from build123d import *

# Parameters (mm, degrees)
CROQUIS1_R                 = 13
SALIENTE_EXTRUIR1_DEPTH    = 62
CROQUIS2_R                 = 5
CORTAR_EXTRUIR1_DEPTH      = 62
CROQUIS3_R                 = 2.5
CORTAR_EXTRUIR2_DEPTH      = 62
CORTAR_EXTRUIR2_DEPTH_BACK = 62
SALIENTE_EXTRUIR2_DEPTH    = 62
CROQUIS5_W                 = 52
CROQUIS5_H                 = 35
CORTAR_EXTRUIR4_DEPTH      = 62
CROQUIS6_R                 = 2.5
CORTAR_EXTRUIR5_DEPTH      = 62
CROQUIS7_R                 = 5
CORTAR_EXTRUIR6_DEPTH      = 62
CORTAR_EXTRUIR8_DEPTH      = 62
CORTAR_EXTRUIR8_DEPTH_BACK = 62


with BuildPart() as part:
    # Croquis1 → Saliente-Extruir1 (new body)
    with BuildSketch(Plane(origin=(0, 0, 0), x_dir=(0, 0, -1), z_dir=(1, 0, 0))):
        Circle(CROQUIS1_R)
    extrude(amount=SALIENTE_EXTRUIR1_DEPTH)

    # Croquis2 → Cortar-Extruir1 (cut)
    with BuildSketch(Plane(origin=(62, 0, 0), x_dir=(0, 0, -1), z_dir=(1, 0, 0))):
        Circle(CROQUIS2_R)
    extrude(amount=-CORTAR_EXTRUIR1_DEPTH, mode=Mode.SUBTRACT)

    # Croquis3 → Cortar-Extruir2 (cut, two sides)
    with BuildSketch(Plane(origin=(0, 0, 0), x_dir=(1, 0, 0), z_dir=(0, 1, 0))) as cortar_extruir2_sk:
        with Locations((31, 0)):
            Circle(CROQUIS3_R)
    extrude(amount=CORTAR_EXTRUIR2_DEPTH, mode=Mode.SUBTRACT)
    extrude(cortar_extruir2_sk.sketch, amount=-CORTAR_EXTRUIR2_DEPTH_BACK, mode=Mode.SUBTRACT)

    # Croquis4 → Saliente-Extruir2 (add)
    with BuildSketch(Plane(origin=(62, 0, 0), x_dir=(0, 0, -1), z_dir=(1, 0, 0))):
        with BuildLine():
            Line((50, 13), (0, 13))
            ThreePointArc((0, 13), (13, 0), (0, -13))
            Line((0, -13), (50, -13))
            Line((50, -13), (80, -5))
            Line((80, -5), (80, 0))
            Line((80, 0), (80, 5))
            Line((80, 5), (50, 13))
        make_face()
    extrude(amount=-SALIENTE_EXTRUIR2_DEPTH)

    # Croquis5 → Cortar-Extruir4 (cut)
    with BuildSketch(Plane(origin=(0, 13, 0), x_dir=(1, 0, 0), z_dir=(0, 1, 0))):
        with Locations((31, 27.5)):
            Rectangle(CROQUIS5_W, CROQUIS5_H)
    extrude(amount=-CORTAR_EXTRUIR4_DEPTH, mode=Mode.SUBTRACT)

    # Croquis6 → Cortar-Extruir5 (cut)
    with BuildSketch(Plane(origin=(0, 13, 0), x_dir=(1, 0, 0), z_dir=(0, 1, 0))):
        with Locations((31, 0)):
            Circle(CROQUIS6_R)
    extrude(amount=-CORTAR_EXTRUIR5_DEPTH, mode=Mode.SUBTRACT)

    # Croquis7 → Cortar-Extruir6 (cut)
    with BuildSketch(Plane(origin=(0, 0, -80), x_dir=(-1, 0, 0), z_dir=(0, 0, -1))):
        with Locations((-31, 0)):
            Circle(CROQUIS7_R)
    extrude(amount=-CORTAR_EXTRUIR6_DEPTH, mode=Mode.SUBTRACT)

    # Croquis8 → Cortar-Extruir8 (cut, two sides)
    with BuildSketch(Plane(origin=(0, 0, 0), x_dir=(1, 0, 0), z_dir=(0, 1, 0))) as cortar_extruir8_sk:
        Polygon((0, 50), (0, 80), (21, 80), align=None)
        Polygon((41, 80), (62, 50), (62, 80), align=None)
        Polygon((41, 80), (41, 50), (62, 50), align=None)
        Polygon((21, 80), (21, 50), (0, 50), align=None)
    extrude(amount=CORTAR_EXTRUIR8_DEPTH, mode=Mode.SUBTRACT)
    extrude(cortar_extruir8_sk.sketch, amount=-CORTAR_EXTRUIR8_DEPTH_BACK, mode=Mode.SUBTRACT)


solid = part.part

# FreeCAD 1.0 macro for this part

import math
import FreeCAD as App
import Part
import Sketcher

V = App.Vector
Q = App.Units.Quantity

doc = App.newDocument("Part")
body = doc.addObject("PartDesign::Body", "Body")

# Sketch on YZ plane
sketch1 = body.newObject("Sketcher::SketchObject", "Sketch")
sketch1.AttachmentSupport = (doc.getObject("YZ_Plane"), [""])
sketch1.MapMode = "FlatFace"
sketch1.addGeometry(Part.Circle(V(0, 0, 0), V(0, 0, 1), 13), False)
sketch1.addConstraint(Sketcher.Constraint("Coincident", 0, 3, -1, 1))
sketch1.addConstraint(Sketcher.Constraint("Diameter", 0, Q("26 mm")))
pad1 = body.newObject("PartDesign::Pad", "Pad")
pad1.Profile = sketch1
pad1.Length = 62

# Sketch on YZ plane
sketch2 = body.newObject("Sketcher::SketchObject", "Sketch001")
sketch2.AttachmentSupport = (doc.getObject("YZ_Plane"), [""])
sketch2.MapMode = "FlatFace"
sketch2.AttachmentOffset = App.Placement(V(0, 0, 62), App.Rotation())
sketch2.addGeometry(Part.Circle(V(0, 0, 0), V(0, 0, 1), 5), False)
sketch2.addConstraint(Sketcher.Constraint("Coincident", 0, 3, -1, 1))
sketch2.addConstraint(Sketcher.Constraint("Diameter", 0, Q("10 mm")))
pocket1 = body.newObject("PartDesign::Pocket", "Pocket")
pocket1.Profile = sketch2
pocket1.Length = 62

# Sketch on XZ plane
sketch3 = body.newObject("Sketcher::SketchObject", "Sketch002")
sketch3.AttachmentSupport = (doc.getObject("XZ_Plane"), [""])
sketch3.MapMode = "FlatFace"
sketch3.addGeometry(Part.Circle(V(31, 0, 0), V(0, 0, 1), 2.5), False)
sketch3.addConstraint(Sketcher.Constraint("PointOnObject", 0, 3, -1))
sketch3.addConstraint(Sketcher.Constraint("Diameter", 0, Q("5 mm")))
sketch3.addConstraint(Sketcher.Constraint("DistanceX", -1, 1, 0, 3, Q("31 mm")))
pocket2 = body.newObject("PartDesign::Pocket", "Pocket001")
pocket2.Profile = sketch3
pocket2.Type = "ThroughAll"
pocket2.Midplane = True

# Sketch on YZ plane
sketch4 = body.newObject("Sketcher::SketchObject", "Sketch003")
sketch4.AttachmentSupport = (doc.getObject("YZ_Plane"), [""])
sketch4.MapMode = "FlatFace"
sketch4.AttachmentOffset = App.Placement(V(0, 0, 62), App.Rotation())
sketch4.addGeometry(Part.LineSegment(V(13, -50, 0), V(13, 0, 0)), False)
sketch4.addGeometry(Part.ArcOfCircle(Part.Circle(V(0, 0, 0), V(0, 0, 1), 13), math.radians(180), math.radians(360)), False)
sketch4.addGeometry(Part.LineSegment(V(-13, 0, 0), V(-13, -50, 0)), False)
sketch4.addGeometry(Part.LineSegment(V(-13, -50, 0), V(-5, -80, 0)), False)
sketch4.addGeometry(Part.LineSegment(V(-5, -80, 0), V(5, -80, 0)), False)
sketch4.addGeometry(Part.LineSegment(V(5, -80, 0), V(13, -50, 0)), False)
sketch4.addConstraint(Sketcher.Constraint("Tangent", 0, 2, 1, 2))
sketch4.addConstraint(Sketcher.Constraint("Tangent", 1, 1, 2, 1))
sketch4.addConstraint(Sketcher.Constraint("Coincident", 2, 2, 3, 1))
sketch4.addConstraint(Sketcher.Constraint("Coincident", 3, 2, 4, 1))
sketch4.addConstraint(Sketcher.Constraint("Coincident", 4, 2, 5, 1))
sketch4.addConstraint(Sketcher.Constraint("Coincident", 5, 2, 0, 1))
sketch4.addConstraint(Sketcher.Constraint("Vertical", 0))
sketch4.addConstraint(Sketcher.Constraint("Vertical", 2))
sketch4.addConstraint(Sketcher.Constraint("Horizontal", 4))
sketch4.addConstraint(Sketcher.Constraint("Coincident", 1, 3, -1, 1))
sketch4.addConstraint(Sketcher.Constraint("Horizontal", 2, 2, 5, 2))
sketch4.addConstraint(Sketcher.Constraint("Equal", 3, 5))
sketch4.addConstraint(Sketcher.Constraint("Radius", 1, Q("13 mm")))
sketch4.addConstraint(Sketcher.Constraint("DistanceX", 4, 1, 4, 2, Q("10 mm")))
sketch4.addConstraint(Sketcher.Constraint("DistanceY", 0, 1, 0, 2, Q("50 mm")))
sketch4.addConstraint(Sketcher.Constraint("DistanceY", 3, 2, -1, 1, Q("80 mm")))
pad2 = body.newObject("PartDesign::Pad", "Pad001")
pad2.Profile = sketch4
pad2.Length = 62
pad2.Reversed = True

# Sketch on XZ plane
sketch5 = body.newObject("Sketcher::SketchObject", "Sketch004")
sketch5.AttachmentSupport = (doc.getObject("XZ_Plane"), [""])
sketch5.MapMode = "FlatFace"
sketch5.AttachmentOffset = App.Placement(V(0, 0, -13), App.Rotation())
sketch5.addGeometry(Part.LineSegment(V(5, -45, 0), V(5, -10, 0)), False)
sketch5.addGeometry(Part.LineSegment(V(5, -10, 0), V(57, -10, 0)), False)
sketch5.addGeometry(Part.LineSegment(V(57, -10, 0), V(57, -45, 0)), False)
sketch5.addGeometry(Part.LineSegment(V(57, -45, 0), V(5, -45, 0)), False)
sketch5.addConstraint(Sketcher.Constraint("Coincident", 0, 2, 1, 1))
sketch5.addConstraint(Sketcher.Constraint("Coincident", 1, 2, 2, 1))
sketch5.addConstraint(Sketcher.Constraint("Coincident", 2, 2, 3, 1))
sketch5.addConstraint(Sketcher.Constraint("Coincident", 3, 2, 0, 1))
sketch5.addConstraint(Sketcher.Constraint("Vertical", 0))
sketch5.addConstraint(Sketcher.Constraint("Horizontal", 1))
sketch5.addConstraint(Sketcher.Constraint("Vertical", 2))
sketch5.addConstraint(Sketcher.Constraint("Horizontal", 3))
sketch5.addConstraint(Sketcher.Constraint("DistanceX", 1, 1, 1, 2, Q("52 mm")))
sketch5.addConstraint(Sketcher.Constraint("DistanceY", 0, 1, 0, 2, Q("35 mm")))
sketch5.addConstraint(Sketcher.Constraint("DistanceX", -1, 1, 0, 2, Q("5 mm")))
sketch5.addConstraint(Sketcher.Constraint("DistanceY", 0, 2, -1, 1, Q("10 mm")))
pocket3 = body.newObject("PartDesign::Pocket", "Pocket002")
pocket3.Profile = sketch5
pocket3.Length = 62
pocket3.Reversed = True

# Sketch on XZ plane
sketch6 = body.newObject("Sketcher::SketchObject", "Sketch005")
sketch6.AttachmentSupport = (doc.getObject("XZ_Plane"), [""])
sketch6.MapMode = "FlatFace"
sketch6.AttachmentOffset = App.Placement(V(0, 0, -13), App.Rotation())
sketch6.addGeometry(Part.Circle(V(31, 0, 0), V(0, 0, 1), 2.5), False)
sketch6.addConstraint(Sketcher.Constraint("PointOnObject", 0, 3, -1))
sketch6.addConstraint(Sketcher.Constraint("Diameter", 0, Q("5 mm")))
sketch6.addConstraint(Sketcher.Constraint("DistanceX", -1, 1, 0, 3, Q("31 mm")))
pocket4 = body.newObject("PartDesign::Pocket", "Pocket003")
pocket4.Profile = sketch6
pocket4.Length = 62
pocket4.Reversed = True

# Sketch on XY plane
sketch7 = body.newObject("Sketcher::SketchObject", "Sketch006")
sketch7.AttachmentSupport = (doc.getObject("XY_Plane"), [""])
sketch7.MapMode = "FlatFace"
sketch7.AttachmentOffset = App.Placement(V(0, 0, -80), App.Rotation())
sketch7.addGeometry(Part.Circle(V(31, 0, 0), V(0, 0, 1), 5), False)
sketch7.addConstraint(Sketcher.Constraint("PointOnObject", 0, 3, -1))
sketch7.addConstraint(Sketcher.Constraint("Diameter", 0, Q("10 mm")))
sketch7.addConstraint(Sketcher.Constraint("DistanceX", -1, 1, 0, 3, Q("31 mm")))
pocket5 = body.newObject("PartDesign::Pocket", "Pocket004")
pocket5.Profile = sketch7
pocket5.Length = 62
pocket5.Reversed = True

# Sketch on XZ plane
sketch8 = body.newObject("Sketcher::SketchObject", "Sketch007")
sketch8.AttachmentSupport = (doc.getObject("XZ_Plane"), [""])
sketch8.MapMode = "FlatFace"
sketch8.addGeometry(Part.LineSegment(V(0, -80, 0), V(0, -50, 0)), False)
sketch8.addGeometry(Part.LineSegment(V(0, -50, 0), V(21, -50, 0)), False)
sketch8.addGeometry(Part.LineSegment(V(21, -50, 0), V(21, -80, 0)), False)
sketch8.addGeometry(Part.LineSegment(V(21, -80, 0), V(0, -80, 0)), False)
sketch8.addGeometry(Part.LineSegment(V(62, -50, 0), V(62, -80, 0)), False)
sketch8.addGeometry(Part.LineSegment(V(62, -80, 0), V(41, -80, 0)), False)
sketch8.addGeometry(Part.LineSegment(V(41, -80, 0), V(41, -50, 0)), False)
sketch8.addGeometry(Part.LineSegment(V(41, -50, 0), V(62, -50, 0)), False)
sketch8.addConstraint(Sketcher.Constraint("Coincident", 0, 2, 1, 1))
sketch8.addConstraint(Sketcher.Constraint("Coincident", 1, 2, 2, 1))
sketch8.addConstraint(Sketcher.Constraint("Coincident", 2, 2, 3, 1))
sketch8.addConstraint(Sketcher.Constraint("Coincident", 3, 2, 0, 1))
sketch8.addConstraint(Sketcher.Constraint("Coincident", 4, 2, 5, 1))
sketch8.addConstraint(Sketcher.Constraint("Coincident", 5, 2, 6, 1))
sketch8.addConstraint(Sketcher.Constraint("Coincident", 6, 2, 7, 1))
sketch8.addConstraint(Sketcher.Constraint("Coincident", 7, 2, 4, 1))
sketch8.addConstraint(Sketcher.Constraint("Vertical", 0))
sketch8.addConstraint(Sketcher.Constraint("Horizontal", 1))
sketch8.addConstraint(Sketcher.Constraint("Vertical", 2))
sketch8.addConstraint(Sketcher.Constraint("Horizontal", 3))
sketch8.addConstraint(Sketcher.Constraint("Vertical", 4))
sketch8.addConstraint(Sketcher.Constraint("Horizontal", 5))
sketch8.addConstraint(Sketcher.Constraint("Vertical", 6))
sketch8.addConstraint(Sketcher.Constraint("Horizontal", 7))
sketch8.addConstraint(Sketcher.Constraint("PointOnObject", 0, 2, -2))
sketch8.addConstraint(Sketcher.Constraint("Horizontal", 3, 2, 4, 2))
sketch8.addConstraint(Sketcher.Constraint("Horizontal", 1, 2, 6, 2))
sketch8.addConstraint(Sketcher.Constraint("Equal", 3, 5))
sketch8.addConstraint(Sketcher.Constraint("DistanceX", 1, 1, 1, 2, Q("21 mm")))
sketch8.addConstraint(Sketcher.Constraint("DistanceY", 0, 1, 0, 2, Q("30 mm")))
sketch8.addConstraint(Sketcher.Constraint("DistanceY", 0, 2, -1, 1, Q("50 mm")))
sketch8.addConstraint(Sketcher.Constraint("DistanceX", -1, 1, 4, 2, Q("62 mm")))
pocket6 = body.newObject("PartDesign::Pocket", "Pocket005")
pocket6.Profile = sketch8
pocket6.Type = "ThroughAll"
pocket6.Midplane = True

doc.recompute()
